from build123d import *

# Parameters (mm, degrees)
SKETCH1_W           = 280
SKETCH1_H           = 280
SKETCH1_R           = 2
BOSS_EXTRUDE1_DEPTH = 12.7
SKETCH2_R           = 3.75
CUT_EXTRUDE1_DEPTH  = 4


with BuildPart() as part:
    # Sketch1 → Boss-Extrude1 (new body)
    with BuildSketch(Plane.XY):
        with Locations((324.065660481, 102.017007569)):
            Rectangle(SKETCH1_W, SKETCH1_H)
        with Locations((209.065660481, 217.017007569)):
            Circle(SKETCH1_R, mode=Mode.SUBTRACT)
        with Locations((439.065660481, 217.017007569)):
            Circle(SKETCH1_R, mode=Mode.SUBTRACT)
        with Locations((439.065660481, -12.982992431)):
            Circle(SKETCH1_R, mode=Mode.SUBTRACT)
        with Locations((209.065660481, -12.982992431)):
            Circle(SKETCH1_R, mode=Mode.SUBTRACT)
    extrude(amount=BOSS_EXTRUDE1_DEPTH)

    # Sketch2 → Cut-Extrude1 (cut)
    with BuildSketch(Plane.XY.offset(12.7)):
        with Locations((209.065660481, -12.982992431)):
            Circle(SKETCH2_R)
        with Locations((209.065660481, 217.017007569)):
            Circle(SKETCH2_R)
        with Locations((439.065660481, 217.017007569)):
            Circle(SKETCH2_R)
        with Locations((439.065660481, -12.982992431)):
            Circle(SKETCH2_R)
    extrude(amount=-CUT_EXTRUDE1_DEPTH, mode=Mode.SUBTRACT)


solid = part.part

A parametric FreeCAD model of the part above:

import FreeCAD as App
import Part
import Sketcher
Q = App.Units.Quantity


def add_polygon(sketch, points):
    """Adds a closed chain of lines whose ends are joined by coincident constraints."""
    first, n = sketch.GeometryCount, len(points)
    for a, b in zip(points, points[1:] + points[:1]):
        sketch.addGeometry(Part.LineSegment(App.Vector(*a, 0), App.Vector(*b, 0)), False)
    for i in range(n):
        sketch.addConstraint(Sketcher.Constraint("Coincident", first + i, 2, first + (i + 1) % n, 1))

doc = App.newDocument("Part")
params = doc.addObject("Spreadsheet::Sheet", "Params")
for row, (alias, value) in enumerate([
    ("sketch1_diameter", "4 mm"),
    ("sketch1_width", "280 mm"),
    ("pad1_length", "12.7 mm"),
    ("sketch2_diameter", "7.5 mm"),
    ("pocket1_length", "4 mm"),
], start=1):
    params.set(f"A{row}", alias)
    params.set(f"B{row}", "=" + value)
    params.setAlias(f"B{row}", alias)

body = doc.addObject("PartDesign::Body", "Body")

sketch1 = body.newObject("Sketcher::SketchObject", "Sketch")
sketch1.AttachmentSupport = (doc.getObject("XY_Plane"), [""])
sketch1.MapMode = "FlatFace"
add_polygon(sketch1, [(184.1, 242), (184.1, -38), (464.1, -38), (464.1, 242)])
sketch1.addGeometry(Part.Circle(App.Vector(209.1, -13, 0), App.Vector(0, 0, 1), 2), False)
sketch1.addGeometry(Part.Circle(App.Vector(439.1, -13, 0), App.Vector(0, 0, 1), 2), False)
sketch1.addGeometry(Part.Circle(App.Vector(209.1, 217, 0), App.Vector(0, 0, 1), 2), False)
sketch1.addGeometry(Part.Circle(App.Vector(439.1, 217, 0), App.Vector(0, 0, 1), 2), False)
sketch1.addConstraint([
    Sketcher.Constraint("Vertical", 0),
    Sketcher.Constraint("Horizontal", 1),
    Sketcher.Constraint("Vertical", 2),
    Sketcher.Constraint("Horizontal", 3),
    Sketcher.Constraint("Equal", 4, 5),
    Sketcher.Constraint("Equal", 5, 6),
    Sketcher.Constraint("Equal", 6, 7),
    Sketcher.Constraint("Horizontal", 4, 3, 5, 3),
    Sketcher.Constraint("Horizontal", 6, 3, 7, 3),
    Sketcher.Constraint("Vertical", 4, 3, 6, 3),
    Sketcher.Constraint("Vertical", 5, 3, 7, 3),
    Sketcher.Constraint("Equal", 3, 0),
    Sketcher.Constraint("Diameter", 4, Q("4 mm")),
    Sketcher.Constraint("DistanceX", 1, 1, 1, 2, Q("280 mm")),
    Sketcher.Constraint("DistanceX", 4, 3, 5, 3, Q("230 mm")),
    Sketcher.Constraint("DistanceY", 4, 3, 6, 3, Q("230 mm")),
    Sketcher.Constraint("DistanceX", 0, 2, 4, 3, Q("25 mm")),
    Sketcher.Constraint("DistanceY", 0, 2, 4, 3, Q("25 mm")),
    Sketcher.Constraint("DistanceX", -1, 1, 4, 3, Q("209.06566 mm")),
    Sketcher.Constraint("DistanceY", 4, 3, -1, 1, Q("12.982992 mm")),
])
sketch1.setExpression("Constraints[16]", "Params.sketch1_diameter")
sketch1.setExpression("Constraints[17]", "Params.sketch1_width")
pad1 = body.newObject("PartDesign::Pad", "Pad")
pad1.Profile = sketch1
pad1.setExpression("Length", "Params.pad1_length")

sketch2 = body.newObject("Sketcher::SketchObject", "Sketch001")
sketch2.AttachmentSupport = (doc.getObject("XY_Plane"), [""])
sketch2.MapMode = "FlatFace"
sketch2.AttachmentOffset = App.Placement(App.Vector(0, 0, 12.7), App.Rotation())
sketch2.addGeometry([
    Part.Circle(App.Vector(209.1, -13, 0), App.Vector(0, 0, 1), 3.8),
    Part.Circle(App.Vector(209.1, 217, 0), App.Vector(0, 0, 1), 3.8),
    Part.Circle(App.Vector(439.1, 217, 0), App.Vector(0, 0, 1), 3.8),
    Part.Circle(App.Vector(439.1, -13, 0), App.Vector(0, 0, 1), 3.8),
], False)
sketch2.addConstraint([
    Sketcher.Constraint("Equal", 0, 1),
    Sketcher.Constraint("Equal", 1, 2),
    Sketcher.Constraint("Equal", 2, 3),
    Sketcher.Constraint("Horizontal", 1, 3, 2, 3),
    Sketcher.Constraint("Horizontal", 0, 3, 3, 3),
    Sketcher.Constraint("Vertical", 0, 3, 1, 3),
    Sketcher.Constraint("Vertical", 2, 3, 3, 3),
    Sketcher.Constraint("Diameter", 0, Q("7.5 mm")),
    Sketcher.Constraint("DistanceY", 0, 3, 1, 3, Q("230 mm")),
    Sketcher.Constraint("DistanceX", 1, 3, 2, 3, Q("230 mm")),
    Sketcher.Constraint("DistanceX", -1, 1, 0, 3, Q("209.06566 mm")),
    Sketcher.Constraint("DistanceY", 0, 3, -1, 1, Q("12.982992 mm")),
])
sketch2.setExpression("Constraints[7]", "Params.sketch2_diameter")
pocket1 = body.newObject("PartDesign::Pocket", "Pocket")
pocket1.Profile = sketch2
pocket1.setExpression("Length", "Params.pocket1_length")

doc.recompute()
